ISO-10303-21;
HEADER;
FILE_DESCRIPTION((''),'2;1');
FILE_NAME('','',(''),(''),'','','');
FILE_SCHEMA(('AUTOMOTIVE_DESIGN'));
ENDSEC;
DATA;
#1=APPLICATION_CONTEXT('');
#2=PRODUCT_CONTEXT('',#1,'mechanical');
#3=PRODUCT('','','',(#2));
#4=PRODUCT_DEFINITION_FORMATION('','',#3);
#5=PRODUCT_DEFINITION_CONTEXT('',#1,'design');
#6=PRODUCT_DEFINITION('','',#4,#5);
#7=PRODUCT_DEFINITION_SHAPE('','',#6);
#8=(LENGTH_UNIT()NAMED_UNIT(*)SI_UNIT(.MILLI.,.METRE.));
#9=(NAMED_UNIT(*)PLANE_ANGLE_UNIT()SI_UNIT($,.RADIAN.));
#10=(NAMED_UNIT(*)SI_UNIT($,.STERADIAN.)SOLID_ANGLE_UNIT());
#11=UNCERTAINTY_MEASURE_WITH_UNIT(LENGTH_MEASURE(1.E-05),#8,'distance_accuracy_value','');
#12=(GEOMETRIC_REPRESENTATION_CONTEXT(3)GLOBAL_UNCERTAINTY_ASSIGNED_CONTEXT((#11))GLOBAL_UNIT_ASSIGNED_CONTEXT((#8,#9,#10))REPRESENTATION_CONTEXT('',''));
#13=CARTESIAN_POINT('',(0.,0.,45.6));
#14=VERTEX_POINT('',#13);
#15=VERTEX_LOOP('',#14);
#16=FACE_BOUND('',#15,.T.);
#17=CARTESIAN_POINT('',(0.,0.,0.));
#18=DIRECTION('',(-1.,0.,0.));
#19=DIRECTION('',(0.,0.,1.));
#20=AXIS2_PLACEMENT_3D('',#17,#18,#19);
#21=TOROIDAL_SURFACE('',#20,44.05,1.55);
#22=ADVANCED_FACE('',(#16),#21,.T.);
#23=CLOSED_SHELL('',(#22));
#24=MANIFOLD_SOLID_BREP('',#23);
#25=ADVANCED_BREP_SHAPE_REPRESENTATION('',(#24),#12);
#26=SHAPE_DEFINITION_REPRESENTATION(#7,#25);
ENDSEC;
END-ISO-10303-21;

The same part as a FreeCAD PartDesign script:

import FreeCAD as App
import Part
import Sketcher
from FreeCAD import Vector
Q = App.Units.Quantity

doc = App.newDocument("Part")
body = doc.addObject("PartDesign::Body", "Body")

# Sketch on XY plane
sketch1 = body.newObject("Sketcher::SketchObject", "Sketch")
sketch1.AttachmentSupport = (doc.getObject("XY_Plane"), [""])
sketch1.MapMode = "FlatFace"
sketch1.addGeometry(Part.Circle(Vector(0, 44.05, 0), Vector(0, 0, 1), 1.55), False)
sketch1.addConstraint([
    Sketcher.Constraint("PointOnObject", 0, 3, -2),
    Sketcher.Constraint("Diameter", 0, Q("3.1 mm")),
    Sketcher.Constraint("DistanceY", -1, 1, 0, 3, Q("44.05 mm")),
])
revolution = body.newObject("PartDesign::Revolution", "Revolution")
revolution.Profile = sketch1
revolution.ReferenceAxis = (sketch1, ["H_Axis"])
revolution.Angle = 360

doc.recompute()
